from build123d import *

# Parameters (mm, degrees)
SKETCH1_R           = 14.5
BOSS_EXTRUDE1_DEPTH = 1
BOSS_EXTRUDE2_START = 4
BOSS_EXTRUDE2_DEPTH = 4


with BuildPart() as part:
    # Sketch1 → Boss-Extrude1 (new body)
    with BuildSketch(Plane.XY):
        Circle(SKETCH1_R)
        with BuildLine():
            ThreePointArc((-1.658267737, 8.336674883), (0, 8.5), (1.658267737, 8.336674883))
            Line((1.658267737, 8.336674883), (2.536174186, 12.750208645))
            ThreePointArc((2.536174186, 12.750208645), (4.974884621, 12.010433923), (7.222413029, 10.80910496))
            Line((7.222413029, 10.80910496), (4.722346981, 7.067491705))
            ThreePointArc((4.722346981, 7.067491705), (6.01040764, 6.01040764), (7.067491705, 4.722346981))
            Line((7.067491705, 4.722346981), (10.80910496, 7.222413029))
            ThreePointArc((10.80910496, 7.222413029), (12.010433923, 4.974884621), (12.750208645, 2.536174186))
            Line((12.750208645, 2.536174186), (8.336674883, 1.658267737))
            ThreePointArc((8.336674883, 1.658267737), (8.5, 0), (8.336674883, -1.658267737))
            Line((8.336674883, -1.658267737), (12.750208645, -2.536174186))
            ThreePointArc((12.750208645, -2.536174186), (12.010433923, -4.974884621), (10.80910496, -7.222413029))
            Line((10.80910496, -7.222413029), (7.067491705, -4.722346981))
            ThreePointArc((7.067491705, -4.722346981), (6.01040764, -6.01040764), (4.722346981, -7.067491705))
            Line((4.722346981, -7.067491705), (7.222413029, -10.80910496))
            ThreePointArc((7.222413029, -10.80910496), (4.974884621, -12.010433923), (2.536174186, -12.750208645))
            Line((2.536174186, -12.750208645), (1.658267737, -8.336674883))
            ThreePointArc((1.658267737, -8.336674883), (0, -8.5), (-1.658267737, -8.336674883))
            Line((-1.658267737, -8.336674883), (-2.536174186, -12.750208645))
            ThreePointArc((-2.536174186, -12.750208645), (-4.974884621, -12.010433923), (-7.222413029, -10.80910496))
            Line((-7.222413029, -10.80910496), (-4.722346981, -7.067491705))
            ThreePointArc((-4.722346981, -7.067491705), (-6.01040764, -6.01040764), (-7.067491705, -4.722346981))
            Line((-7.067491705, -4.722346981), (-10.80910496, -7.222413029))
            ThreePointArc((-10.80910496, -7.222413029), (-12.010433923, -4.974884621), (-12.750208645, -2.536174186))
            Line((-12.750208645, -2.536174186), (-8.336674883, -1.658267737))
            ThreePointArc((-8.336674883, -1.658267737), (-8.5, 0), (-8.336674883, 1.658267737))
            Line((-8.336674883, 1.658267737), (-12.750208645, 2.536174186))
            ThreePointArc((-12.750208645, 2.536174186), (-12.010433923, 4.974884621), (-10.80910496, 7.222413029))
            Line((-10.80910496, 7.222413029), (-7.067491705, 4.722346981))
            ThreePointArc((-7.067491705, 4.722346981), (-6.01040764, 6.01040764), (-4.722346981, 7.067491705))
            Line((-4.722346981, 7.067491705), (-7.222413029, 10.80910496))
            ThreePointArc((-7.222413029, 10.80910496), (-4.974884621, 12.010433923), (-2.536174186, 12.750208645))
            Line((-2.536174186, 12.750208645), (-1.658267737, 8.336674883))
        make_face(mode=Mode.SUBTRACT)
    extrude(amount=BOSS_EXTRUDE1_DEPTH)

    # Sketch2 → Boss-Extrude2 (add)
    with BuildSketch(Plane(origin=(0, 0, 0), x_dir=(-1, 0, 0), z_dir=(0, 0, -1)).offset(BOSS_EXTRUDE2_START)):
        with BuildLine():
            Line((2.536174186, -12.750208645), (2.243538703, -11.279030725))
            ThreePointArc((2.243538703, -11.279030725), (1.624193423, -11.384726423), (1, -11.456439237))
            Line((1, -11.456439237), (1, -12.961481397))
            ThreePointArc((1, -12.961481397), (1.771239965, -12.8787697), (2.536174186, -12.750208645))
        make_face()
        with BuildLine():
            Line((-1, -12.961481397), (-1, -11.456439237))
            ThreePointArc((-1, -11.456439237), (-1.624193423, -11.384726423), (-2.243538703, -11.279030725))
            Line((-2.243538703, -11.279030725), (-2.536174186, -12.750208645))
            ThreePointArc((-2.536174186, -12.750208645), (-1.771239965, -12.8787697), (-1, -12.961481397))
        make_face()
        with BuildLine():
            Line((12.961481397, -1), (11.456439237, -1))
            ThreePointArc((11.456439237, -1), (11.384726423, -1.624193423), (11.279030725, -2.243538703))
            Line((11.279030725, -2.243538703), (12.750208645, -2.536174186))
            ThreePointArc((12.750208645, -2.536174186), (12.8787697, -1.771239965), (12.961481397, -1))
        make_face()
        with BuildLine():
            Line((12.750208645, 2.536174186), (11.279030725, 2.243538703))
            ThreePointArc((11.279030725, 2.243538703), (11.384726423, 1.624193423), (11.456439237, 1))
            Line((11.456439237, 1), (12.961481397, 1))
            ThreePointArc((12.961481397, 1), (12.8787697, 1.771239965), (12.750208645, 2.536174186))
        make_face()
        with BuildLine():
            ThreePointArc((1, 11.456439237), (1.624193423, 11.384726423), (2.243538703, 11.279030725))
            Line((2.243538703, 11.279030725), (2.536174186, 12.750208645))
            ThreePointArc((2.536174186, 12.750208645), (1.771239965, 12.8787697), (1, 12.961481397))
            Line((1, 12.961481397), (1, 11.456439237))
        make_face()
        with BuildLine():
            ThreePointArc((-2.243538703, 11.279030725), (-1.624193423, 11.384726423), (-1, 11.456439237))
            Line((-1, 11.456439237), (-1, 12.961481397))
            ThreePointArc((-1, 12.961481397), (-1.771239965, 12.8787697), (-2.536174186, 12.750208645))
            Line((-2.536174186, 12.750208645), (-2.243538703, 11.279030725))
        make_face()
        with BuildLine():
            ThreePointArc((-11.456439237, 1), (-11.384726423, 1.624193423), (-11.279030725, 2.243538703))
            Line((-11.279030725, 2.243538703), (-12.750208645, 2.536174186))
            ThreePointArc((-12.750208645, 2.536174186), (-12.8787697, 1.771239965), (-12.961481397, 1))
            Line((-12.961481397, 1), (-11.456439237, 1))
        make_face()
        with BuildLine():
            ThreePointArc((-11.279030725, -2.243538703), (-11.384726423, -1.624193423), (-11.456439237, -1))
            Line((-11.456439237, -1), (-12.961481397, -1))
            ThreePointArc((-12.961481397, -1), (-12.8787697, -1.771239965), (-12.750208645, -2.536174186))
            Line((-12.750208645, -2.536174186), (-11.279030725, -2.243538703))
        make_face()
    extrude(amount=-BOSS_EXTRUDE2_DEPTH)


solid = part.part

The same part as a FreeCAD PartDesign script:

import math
import FreeCAD as App
import Part
import Sketcher

V = App.Vector
Q = App.Units.Quantity

doc = App.newDocument("Part")
body = doc.addObject("PartDesign::Body", "Body")

sketch1 = doc.addObject("Sketcher::SketchObject", "Sketch")
body.addObject(sketch1)
sketch1.AttachmentSupport = (doc.XY_Plane, [""])
sketch1.MapMode = "FlatFace"
sketch1.addGeometry(Part.Circle(V(0, 0, 0), V(0, 0, 1), 14.5), False)
sketch1.addGeometry(Part.LineSegment(V(-2.5, 12.8, 0), V(-1.7, 8.3, 0)), False)
sketch1.addGeometry(Part.ArcOfCircle(Part.Circle(V(0, 0, 0), V(0, 0, 1), 8.5), math.radians(79), math.radians(101)), False)
sketch1.addGeometry(Part.LineSegment(V(1.7, 8.3, 0), V(2.5, 12.8, 0)), False)
sketch1.addGeometry(Part.ArcOfCircle(Part.Circle(V(0, 0, 0), V(0, 0, 1), 13), math.radians(56), math.radians(79)), False)
sketch1.addGeometry(Part.LineSegment(V(7.2, 10.8, 0), V(4.7, 7.1, 0)), False)
sketch1.addGeometry(Part.ArcOfCircle(Part.Circle(V(0, 0, 0), V(0, 0, 1), 8.5), math.radians(34), math.radians(56)), False)
sketch1.addGeometry(Part.LineSegment(V(7.1, 4.7, 0), V(10.8, 7.2, 0)), False)
sketch1.addGeometry(Part.ArcOfCircle(Part.Circle(V(0, 0, 0), V(0, 0, 1), 13), math.radians(11), math.radians(34)), False)
sketch1.addGeometry(Part.LineSegment(V(12.8, 2.5, 0), V(8.3, 1.7, 0)), False)
sketch1.addGeometry(Part.ArcOfCircle(Part.Circle(V(0, 0, 0), V(0, 0, 1), 8.5), math.radians(-11), math.radians(11)), False)
sketch1.addGeometry(Part.LineSegment(V(8.3, -1.7, 0), V(12.8, -2.5, 0)), False)
sketch1.addGeometry(Part.ArcOfCircle(Part.Circle(V(0, 0, 0), V(0, 0, 1), 13), math.radians(-34), math.radians(-11)), False)
sketch1.addGeometry(Part.LineSegment(V(10.8, -7.2, 0), V(7.1, -4.7, 0)), False)
sketch1.addGeometry(Part.ArcOfCircle(Part.Circle(V(0, 0, 0), V(0, 0, 1), 8.5), math.radians(-56), math.radians(-34)), False)
sketch1.addGeometry(Part.LineSegment(V(4.7, -7.1, 0), V(7.2, -10.8, 0)), False)
sketch1.addGeometry(Part.ArcOfCircle(Part.Circle(V(0, 0, 0), V(0, 0, 1), 13), math.radians(-79), math.radians(-56)), False)
sketch1.addGeometry(Part.LineSegment(V(2.5, -12.8, 0), V(1.7, -8.3, 0)), False)
sketch1.addGeometry(Part.ArcOfCircle(Part.Circle(V(0, 0, 0), V(0, 0, 1), 8.5), math.radians(-101), math.radians(-79)), False)
sketch1.addGeometry(Part.LineSegment(V(-1.7, -8.3, 0), V(-2.5, -12.8, 0)), False)
sketch1.addGeometry(Part.ArcOfCircle(Part.Circle(V(0, 0, 0), V(0, 0, 1), 13), math.radians(-124), math.radians(-101)), False)
sketch1.addGeometry(Part.LineSegment(V(-7.2, -10.8, 0), V(-4.7, -7.1, 0)), False)
sketch1.addGeometry(Part.ArcOfCircle(Part.Circle(V(0, 0, 0), V(0, 0, 1), 8.5), math.radians(-146), math.radians(-124)), False)
sketch1.addGeometry(Part.LineSegment(V(-7.1, -4.7, 0), V(-10.8, -7.2, 0)), False)
sketch1.addGeometry(Part.ArcOfCircle(Part.Circle(V(0, 0, 0), V(0, 0, 1), 13), math.radians(-169), math.radians(-146)), False)
sketch1.addGeometry(Part.LineSegment(V(-12.8, -2.5, 0), V(-8.3, -1.7, 0)), False)
sketch1.addGeometry(Part.ArcOfCircle(Part.Circle(V(0, 0, 0), V(0, 0, 1), 8.5), math.radians(169), math.radians(191)), False)
sketch1.addGeometry(Part.LineSegment(V(-8.3, 1.7, 0), V(-12.8, 2.5, 0)), False)
sketch1.addGeometry(Part.ArcOfCircle(Part.Circle(V(0, 0, 0), V(0, 0, 1), 13), math.radians(146), math.radians(169)), False)
sketch1.addGeometry(Part.LineSegment(V(-10.8, 7.2, 0), V(-7.1, 4.7, 0)), False)
sketch1.addGeometry(Part.ArcOfCircle(Part.Circle(V(0, 0, 0), V(0, 0, 1), 8.5), math.radians(124), math.radians(146)), False)
sketch1.addGeometry(Part.LineSegment(V(-4.7, 7.1, 0), V(-7.2, 10.8, 0)), False)
sketch1.addGeometry(Part.ArcOfCircle(Part.Circle(V(0, 0, 0), V(0, 0, 1), 13), math.radians(101), math.radians(124)), False)
sketch1.addConstraint(Sketcher.Constraint("Coincident", 1, 2, 2, 2))
sketch1.addConstraint(Sketcher.Constraint("Coincident", 2, 1, 3, 1))
sketch1.addConstraint(Sketcher.Constraint("Coincident", 3, 2, 4, 2))
sketch1.addConstraint(Sketcher.Constraint("Coincident", 4, 1, 5, 1))
sketch1.addConstraint(Sketcher.Constraint("Coincident", 5, 2, 6, 2))
sketch1.addConstraint(Sketcher.Constraint("Coincident", 6, 1, 7, 1))
sketch1.addConstraint(Sketcher.Constraint("Coincident", 7, 2, 8, 2))
sketch1.addConstraint(Sketcher.Constraint("Coincident", 8, 1, 9, 1))
sketch1.addConstraint(Sketcher.Constraint("Coincident", 9, 2, 10, 2))
sketch1.addConstraint(Sketcher.Constraint("Coincident", 10, 1, 11, 1))
sketch1.addConstraint(Sketcher.Constraint("Coincident", 11, 2, 12, 2))
sketch1.addConstraint(Sketcher.Constraint("Coincident", 12, 1, 13, 1))
sketch1.addConstraint(Sketcher.Constraint("Coincident", 13, 2, 14, 2))
sketch1.addConstraint(Sketcher.Constraint("Coincident", 14, 1, 15, 1))
sketch1.addConstraint(Sketcher.Constraint("Coincident", 15, 2, 16, 2))
sketch1.addConstraint(Sketcher.Constraint("Coincident", 16, 1, 17, 1))
sketch1.addConstraint(Sketcher.Constraint("Coincident", 17, 2, 18, 2))
sketch1.addConstraint(Sketcher.Constraint("Coincident", 18, 1, 19, 1))
sketch1.addConstraint(Sketcher.Constraint("Coincident", 19, 2, 20, 2))
sketch1.addConstraint(Sketcher.Constraint("Coincident", 20, 1, 21, 1))
sketch1.addConstraint(Sketcher.Constraint("Coincident", 21, 2, 22, 2))
sketch1.addConstraint(Sketcher.Constraint("Coincident", 22, 1, 23, 1))
sketch1.addConstraint(Sketcher.Constraint("Coincident", 23, 2, 24, 2))
sketch1.addConstraint(Sketcher.Constraint("Coincident", 24, 1, 25, 1))
sketch1.addConstraint(Sketcher.Constraint("Coincident", 25, 2, 26, 2))
sketch1.addConstraint(Sketcher.Constraint("Coincident", 26, 1, 27, 1))
sketch1.addConstraint(Sketcher.Constraint("Coincident", 27, 2, 28, 2))
sketch1.addConstraint(Sketcher.Constraint("Coincident", 28, 1, 29, 1))
sketch1.addConstraint(Sketcher.Constraint("Coincident", 29, 2, 30, 2))
sketch1.addConstraint(Sketcher.Constraint("Coincident", 30, 1, 31, 1))
sketch1.addConstraint(Sketcher.Constraint("Coincident", 31, 2, 32, 2))
sketch1.addConstraint(Sketcher.Constraint("Coincident", 32, 1, 1, 1))
sketch1.addConstraint(Sketcher.Constraint("Coincident", 0, 3, -1, 1))
sketch1.addConstraint(Sketcher.Constraint("Coincident", 2, 3, -1, 1))
sketch1.addConstraint(Sketcher.Constraint("Coincident", 4, 3, -1, 1))
sketch1.addConstraint(Sketcher.Constraint("Coincident", 6, 3, -1, 1))
sketch1.addConstraint(Sketcher.Constraint("Coincident", 8, 3, -1, 1))
sketch1.addConstraint(Sketcher.Constraint("Coincident", 10, 3, -1, 1))
sketch1.addConstraint(Sketcher.Constraint("Coincident", 12, 3, -1, 1))
sketch1.addConstraint(Sketcher.Constraint("Coincident", 14, 3, -1, 1))
sketch1.addConstraint(Sketcher.Constraint("Coincident", 16, 3, -1, 1))
sketch1.addConstraint(Sketcher.Constraint("Coincident", 18, 3, -1, 1))
sketch1.addConstraint(Sketcher.Constraint("Coincident", 20, 3, -1, 1))
sketch1.addConstraint(Sketcher.Constraint("Coincident", 22, 3, -1, 1))
sketch1.addConstraint(Sketcher.Constraint("Coincident", 24, 3, -1, 1))
sketch1.addConstraint(Sketcher.Constraint("Coincident", 26, 3, -1, 1))
sketch1.addConstraint(Sketcher.Constraint("Coincident", 28, 3, -1, 1))
sketch1.addConstraint(Sketcher.Constraint("Coincident", 30, 3, -1, 1))
sketch1.addConstraint(Sketcher.Constraint("Coincident", 32, 3, -1, 1))
sketch1.addConstraint(Sketcher.Constraint("Equal", 2, 6))
sketch1.addConstraint(Sketcher.Constraint("Equal", 4, 8))
sketch1.addConstraint(Sketcher.Constraint("Equal", 6, 10))
sketch1.addConstraint(Sketcher.Constraint("Equal", 8, 12))
sketch1.addConstraint(Sketcher.Constraint("Equal", 10, 14))
sketch1.addConstraint(Sketcher.Constraint("Equal", 12, 16))
sketch1.addConstraint(Sketcher.Constraint("Equal", 14, 18))
sketch1.addConstraint(Sketcher.Constraint("Equal", 16, 20))
sketch1.addConstraint(Sketcher.Constraint("Equal", 18, 22))
sketch1.addConstraint(Sketcher.Constraint("Equal", 20, 24))
sketch1.addConstraint(Sketcher.Constraint("Equal", 22, 26))
sketch1.addConstraint(Sketcher.Constraint("Equal", 24, 28))
sketch1.addConstraint(Sketcher.Constraint("Equal", 26, 30))
sketch1.addConstraint(Sketcher.Constraint("Equal", 28, 32))
sketch1.addConstraint(Sketcher.Constraint("Perpendicular", 1, 9))
sketch1.addConstraint(Sketcher.Constraint("Perpendicular", 3, 11))
sketch1.addConstraint(Sketcher.Constraint("Perpendicular", 5, 13))
sketch1.addConstraint(Sketcher.Constraint("Perpendicular", 7, 15))
sketch1.addConstraint(Sketcher.Constraint("Perpendicular", 9, 17))
sketch1.addConstraint(Sketcher.Constraint("Perpendicular", 11, 19))
sketch1.addConstraint(Sketcher.Constraint("Perpendicular", 13, 21))
sketch1.addConstraint(Sketcher.Constraint("Perpendicular", 15, 23))
sketch1.addConstraint(Sketcher.Constraint("Perpendicular", 17, 25))
sketch1.addConstraint(Sketcher.Constraint("Perpendicular", 19, 27))
sketch1.addConstraint(Sketcher.Constraint("Perpendicular", 21, 29))
sketch1.addConstraint(Sketcher.Constraint("Perpendicular", 23, 31))
sketch1.addConstraint(Sketcher.Constraint("Horizontal", 1, 2, 2, 1))
sketch1.addConstraint(Sketcher.Constraint("Horizontal", 17, 2, 18, 1))
sketch1.addConstraint(Sketcher.Constraint("Horizontal", 16, 1, 19, 2))
sketch1.addConstraint(Sketcher.Constraint("Horizontal", 15, 2, 20, 1))
sketch1.addConstraint(Sketcher.Constraint("Horizontal", 14, 1, 21, 2))
sketch1.addConstraint(Sketcher.Constraint("Horizontal", 13, 2, 22, 1))
sketch1.addConstraint(Sketcher.Constraint("Horizontal", 11, 2, 24, 1))
sketch1.addConstraint(Sketcher.Constraint("Horizontal", 9, 2, 26, 1))
sketch1.addConstraint(Sketcher.Constraint("Horizontal", 7, 2, 28, 1))
sketch1.addConstraint(Sketcher.Constraint("Horizontal", 5, 2, 30, 1))
sketch1.addConstraint(Sketcher.Constraint("Vertical", 9, 2, 10, 1))
sketch1.addConstraint(Sketcher.Constraint("Vertical", 7, 2, 12, 1))
sketch1.addConstraint(Sketcher.Constraint("Vertical", 5, 2, 14, 1))
sketch1.addConstraint(Sketcher.Constraint("Vertical", 3, 2, 16, 1))
sketch1.addConstraint(Sketcher.Constraint("Diameter", 0, Q("29 mm")))
sketch1.addConstraint(Sketcher.Constraint("Radius", 4, Q("13 mm")))
sketch1.addConstraint(Sketcher.Constraint("Radius", 2, Q("8.5 mm")))
sketch1.addConstraint(Sketcher.Constraint("Angle", 1, Q("-78.75 deg")))
sketch1.addConstraint(Sketcher.Constraint("Angle", 5, Q("-123.75 deg")))
sketch1.addConstraint(Sketcher.Constraint("DistanceY", 8, 1, 2, 1, Q("5.800501 mm")))
sketch1.addConstraint(Sketcher.Constraint("DistanceX", 16, 1, 10, 1, Q("5.800501 mm")))
sketch1.addConstraint(Sketcher.Constraint("DistanceY", -1, 1, 5, 2, Q("7.067492 mm")))
sketch1.addConstraint(Sketcher.Constraint("DistanceX", -1, 1, 6, 1, Q("7.067492 mm")))
pad1 = doc.addObject("PartDesign::Pad", "Pad")
body.addObject(pad1)
pad1.Profile = sketch1
pad1.Length = 1

sketch2 = doc.addObject("Sketcher::SketchObject", "Sketch001")
body.addObject(sketch2)
sketch2.AttachmentSupport = (doc.XY_Plane, [""])
sketch2.MapMode = "FlatFace"
sketch2.AttachmentOffset = App.Placement(V(0, 0, -4), App.Rotation())
sketch2.addGeometry(Part.LineSegment(V(-2.5, -12.8, 0), V(-2.2, -11.3, 0)), False)
sketch2.addGeometry(Part.ArcOfCircle(Part.Circle(V(0, 0, 0), V(0, 0, 1), 11.5), math.radians(-101.25), math.radians(-94.99)), False)
sketch2.addGeometry(Part.LineSegment(V(-1, -11.5, 0), V(-1, -13, 0)), False)
sketch2.addGeometry(Part.ArcOfCircle(Part.Circle(V(0, 0, 0), V(0, 0, 1), 13), math.radians(-101.25), math.radians(-94.41)), False)
sketch2.addGeometry(Part.LineSegment(V(1, -13, 0), V(1, -11.5, 0)), False)
sketch2.addGeometry(Part.ArcOfCircle(Part.Circle(V(0, 0, 0), V(0, 0, 1), 11.5), math.radians(-85.01), math.radians(-78.75)), False)
sketch2.addGeometry(Part.LineSegment(V(2.2, -11.3, 0), V(2.5, -12.8, 0)), False)
sketch2.addGeometry(Part.ArcOfCircle(Part.Circle(V(0, 0, 0), V(0, 0, 1), 13), math.radians(-85.59), math.radians(-78.75)), False)
sketch2.addGeometry(Part.LineSegment(V(-13, -1, 0), V(-11.5, -1, 0)), False)
sketch2.addGeometry(Part.ArcOfCircle(Part.Circle(V(0, 0, 0), V(0, 0, 1), 11.5), math.radians(-175.01), math.radians(-168.75)), False)
sketch2.addGeometry(Part.LineSegment(V(-11.3, -2.2, 0), V(-12.8, -2.5, 0)), False)
sketch2.addGeometry(Part.ArcOfCircle(Part.Circle(V(0, 0, 0), V(0, 0, 1), 13), math.radians(-175.59), math.radians(-168.75)), False)
sketch2.addGeometry(Part.LineSegment(V(-12.8, 2.5, 0), V(-11.3, 2.2, 0)), False)
sketch2.addGeometry(Part.ArcOfCircle(Part.Circle(V(0, 0, 0), V(0, 0, 1), 11.5), math.radians(168.75), math.radians(175.01)), False)
sketch2.addGeometry(Part.LineSegment(V(-11.5, 1, 0), V(-13, 1, 0)), False)
sketch2.addGeometry(Part.ArcOfCircle(Part.Circle(V(0, 0, 0), V(0, 0, 1), 13), math.radians(168.75), math.radians(175.59)), False)
sketch2.addGeometry(Part.ArcOfCircle(Part.Circle(V(0, 0, 0), V(0, 0, 1), 11.5), math.radians(94.99), math.radians(101.25)), False)
sketch2.addGeometry(Part.LineSegment(V(-2.2, 11.3, 0), V(-2.5, 12.8, 0)), False)
sketch2.addGeometry(Part.ArcOfCircle(Part.Circle(V(0, 0, 0), V(0, 0, 1), 13), math.radians(94.41), math.radians(101.25)), False)
sketch2.addGeometry(Part.LineSegment(V(-1, 13, 0), V(-1, 11.5, 0)), False)
sketch2.addGeometry(Part.ArcOfCircle(Part.Circle(V(0, 0, 0), V(0, 0, 1), 11.5), math.radians(78.75), math.radians(85.01)), False)
sketch2.addGeometry(Part.LineSegment(V(1, 11.5, 0), V(1, 13, 0)), False)
sketch2.addGeometry(Part.ArcOfCircle(Part.Circle(V(0, 0, 0), V(0, 0, 1), 13), math.radians(78.75), math.radians(85.59)), False)
sketch2.addGeometry(Part.LineSegment(V(2.5, 12.8, 0), V(2.2, 11.3, 0)), False)
sketch2.addGeometry(Part.ArcOfCircle(Part.Circle(V(0, 0, 0), V(0, 0, 1), 11.5), math.radians(4.99), math.radians(11.25)), False)
sketch2.addGeometry(Part.LineSegment(V(11.3, 2.2, 0), V(12.8, 2.5, 0)), False)
sketch2.addGeometry(Part.ArcOfCircle(Part.Circle(V(0, 0, 0), V(0, 0, 1), 13), math.radians(4.41), math.radians(11.25)), False)
sketch2.addGeometry(Part.LineSegment(V(13, 1, 0), V(11.5, 1, 0)), False)
sketch2.addGeometry(Part.ArcOfCircle(Part.Circle(V(0, 0, 0), V(0, 0, 1), 11.5), math.radians(-11.25), math.radians(-4.99)), False)
sketch2.addGeometry(Part.LineSegment(V(11.5, -1, 0), V(13, -1, 0)), False)
sketch2.addGeometry(Part.ArcOfCircle(Part.Circle(V(0, 0, 0), V(0, 0, 1), 13), math.radians(-11.25), math.radians(-4.41)), False)
sketch2.addGeometry(Part.LineSegment(V(12.8, -2.5, 0), V(11.3, -2.2, 0)), False)
sketch2.addConstraint(Sketcher.Constraint("Coincident", 0, 2, 1, 1))
sketch2.addConstraint(Sketcher.Constraint("Coincident", 1, 2, 2, 1))
sketch2.addConstraint(Sketcher.Constraint("Coincident", 2, 2, 3, 2))
sketch2.addConstraint(Sketcher.Constraint("Coincident", 3, 1, 0, 1))
sketch2.addConstraint(Sketcher.Constraint("Coincident", 4, 2, 5, 1))
sketch2.addConstraint(Sketcher.Constraint("Coincident", 5, 2, 6, 1))
sketch2.addConstraint(Sketcher.Constraint("Coincident", 6, 2, 7, 2))
sketch2.addConstraint(Sketcher.Constraint("Coincident", 7, 1, 4, 1))
sketch2.addConstraint(Sketcher.Constraint("Coincident", 8, 2, 9, 1))
sketch2.addConstraint(Sketcher.Constraint("Coincident", 9, 2, 10, 1))
sketch2.addConstraint(Sketcher.Constraint("Coincident", 10, 2, 11, 2))
sketch2.addConstraint(Sketcher.Constraint("Coincident", 11, 1, 8, 1))
sketch2.addConstraint(Sketcher.Constraint("Coincident", 12, 2, 13, 1))
sketch2.addConstraint(Sketcher.Constraint("Coincident", 13, 2, 14, 1))
sketch2.addConstraint(Sketcher.Constraint("Coincident", 14, 2, 15, 2))
sketch2.addConstraint(Sketcher.Constraint("Coincident", 15, 1, 12, 1))
sketch2.addConstraint(Sketcher.Constraint("Coincident", 16, 2, 17, 1))
sketch2.addConstraint(Sketcher.Constraint("Coincident", 17, 2, 18, 2))
sketch2.addConstraint(Sketcher.Constraint("Coincident", 18, 1, 19, 1))
sketch2.addConstraint(Sketcher.Constraint("Coincident", 19, 2, 16, 1))
sketch2.addConstraint(Sketcher.Constraint("Coincident", 20, 2, 21, 1))
sketch2.addConstraint(Sketcher.Constraint("Coincident", 21, 2, 22, 2))
sketch2.addConstraint(Sketcher.Constraint("Coincident", 22, 1, 23, 1))
sketch2.addConstraint(Sketcher.Constraint("Coincident", 23, 2, 20, 1))
sketch2.addConstraint(Sketcher.Constraint("Coincident", 24, 2, 25, 1))
sketch2.addConstraint(Sketcher.Constraint("Coincident", 25, 2, 26, 2))
sketch2.addConstraint(Sketcher.Constraint("Coincident", 26, 1, 27, 1))
sketch2.addConstraint(Sketcher.Constraint("Coincident", 27, 2, 24, 1))
sketch2.addConstraint(Sketcher.Constraint("Coincident", 28, 2, 29, 1))
sketch2.addConstraint(Sketcher.Constraint("Coincident", 29, 2, 30, 2))
sketch2.addConstraint(Sketcher.Constraint("Coincident", 30, 1, 31, 1))
sketch2.addConstraint(Sketcher.Constraint("Coincident", 31, 2, 28, 1))
sketch2.addConstraint(Sketcher.Constraint("Vertical", 2))
sketch2.addConstraint(Sketcher.Constraint("Vertical", 4))
sketch2.addConstraint(Sketcher.Constraint("Horizontal", 8))
sketch2.addConstraint(Sketcher.Constraint("Horizontal", 14))
sketch2.addConstraint(Sketcher.Constraint("Vertical", 19))
sketch2.addConstraint(Sketcher.Constraint("Vertical", 21))
sketch2.addConstraint(Sketcher.Constraint("Horizontal", 27))
sketch2.addConstraint(Sketcher.Constraint("Horizontal", 29))
sketch2.addConstraint(Sketcher.Constraint("Coincident", 1, 3, -1, 1))
sketch2.addConstraint(Sketcher.Constraint("Coincident", 3, 3, -1, 1))
sketch2.addConstraint(Sketcher.Constraint("Coincident", 5, 3, -1, 1))
sketch2.addConstraint(Sketcher.Constraint("Coincident", 7, 3, -1, 1))
sketch2.addConstraint(Sketcher.Constraint("Coincident", 9, 3, -1, 1))
sketch2.addConstraint(Sketcher.Constraint("Coincident", 11, 3, -1, 1))
sketch2.addConstraint(Sketcher.Constraint("Coincident", 13, 3, -1, 1))
sketch2.addConstraint(Sketcher.Constraint("Coincident", 15, 3, -1, 1))
sketch2.addConstraint(Sketcher.Constraint("Coincident", 16, 3, -1, 1))
sketch2.addConstraint(Sketcher.Constraint("Coincident", 18, 3, -1, 1))
sketch2.addConstraint(Sketcher.Constraint("Coincident", 20, 3, -1, 1))
sketch2.addConstraint(Sketcher.Constraint("Coincident", 22, 3, -1, 1))
sketch2.addConstraint(Sketcher.Constraint("Coincident", 24, 3, -1, 1))
sketch2.addConstraint(Sketcher.Constraint("Coincident", 26, 3, -1, 1))
sketch2.addConstraint(Sketcher.Constraint("Coincident", 28, 3, -1, 1))
sketch2.addConstraint(Sketcher.Constraint("Coincident", 30, 3, -1, 1))
sketch2.addConstraint(Sketcher.Constraint("Equal", 1, 5))
sketch2.addConstraint(Sketcher.Constraint("Equal", 3, 7))
sketch2.addConstraint(Sketcher.Constraint("Equal", 5, 9))
sketch2.addConstraint(Sketcher.Constraint("Equal", 7, 11))
sketch2.addConstraint(Sketcher.Constraint("Equal", 9, 13))
sketch2.addConstraint(Sketcher.Constraint("Equal", 11, 15))
sketch2.addConstraint(Sketcher.Constraint("Equal", 13, 16))
sketch2.addConstraint(Sketcher.Constraint("Equal", 15, 18))
sketch2.addConstraint(Sketcher.Constraint("Equal", 16, 20))
sketch2.addConstraint(Sketcher.Constraint("Equal", 18, 22))
sketch2.addConstraint(Sketcher.Constraint("Equal", 20, 24))
sketch2.addConstraint(Sketcher.Constraint("Equal", 22, 26))
sketch2.addConstraint(Sketcher.Constraint("Equal", 24, 28))
sketch2.addConstraint(Sketcher.Constraint("Equal", 26, 30))
sketch2.addConstraint(Sketcher.Constraint("Perpendicular", 6, 10))
sketch2.addConstraint(Sketcher.Constraint("Perpendicular", 0, 12))
sketch2.addConstraint(Sketcher.Constraint("Perpendicular", 10, 17))
sketch2.addConstraint(Sketcher.Constraint("Perpendicular", 12, 23))
sketch2.addConstraint(Sketcher.Constraint("Perpendicular", 17, 25))
sketch2.addConstraint(Sketcher.Constraint("Perpendicular", 23, 31))
sketch2.addConstraint(Sketcher.Constraint("Horizontal", 1, 2, 4, 2))
sketch2.addConstraint(Sketcher.Constraint("Horizontal", 0, 2, 5, 2))
sketch2.addConstraint(Sketcher.Constraint("Horizontal", 3, 1, 6, 2))
sketch2.addConstraint(Sketcher.Constraint("Horizontal", 19, 2, 20, 2))
sketch2.addConstraint(Sketcher.Constraint("Horizontal", 17, 2, 22, 1))
sketch2.addConstraint(Sketcher.Constraint("Horizontal", 12, 2, 24, 2))
sketch2.addConstraint(Sketcher.Constraint("Horizontal", 14, 2, 26, 1))
sketch2.addConstraint(Sketcher.Constraint("Horizontal", 11, 1, 28, 2))
sketch2.addConstraint(Sketcher.Constraint("Horizontal", 10, 2, 30, 1))
sketch2.addConstraint(Sketcher.Constraint("Vertical", 9, 2, 12, 2))
sketch2.addConstraint(Sketcher.Constraint("Vertical", 8, 2, 13, 2))
sketch2.addConstraint(Sketcher.Constraint("Vertical", 0, 2, 16, 2))
sketch2.addConstraint(Sketcher.Constraint("Vertical", 2, 2, 18, 1))
sketch2.addConstraint(Sketcher.Constraint("Equal", 29, 2))
sketch2.addConstraint(Sketcher.Constraint("Radius", 3, Q("13 mm")))
sketch2.addConstraint(Sketcher.Constraint("Radius", 1, Q("11.5 mm")))
sketch2.addConstraint(Sketcher.Constraint("DistanceX", 1, 2, -1, 1, Q("1 mm")))
sketch2.addConstraint(Sketcher.Constraint("Angle", 0, Q("78.75 deg")))
sketch2.addConstraint(Sketcher.Constraint("DistanceX", 0, 2, -1, 1, Q("2.243539 mm")))
sketch2.addConstraint(Sketcher.Constraint("DistanceX", 9, 2, -1, 1, Q("11.279031 mm")))
pad2 = doc.addObject("PartDesign::Pad", "Pad001")
body.addObject(pad2)
pad2.Profile = sketch2
pad2.Length = 4

doc.recompute()
